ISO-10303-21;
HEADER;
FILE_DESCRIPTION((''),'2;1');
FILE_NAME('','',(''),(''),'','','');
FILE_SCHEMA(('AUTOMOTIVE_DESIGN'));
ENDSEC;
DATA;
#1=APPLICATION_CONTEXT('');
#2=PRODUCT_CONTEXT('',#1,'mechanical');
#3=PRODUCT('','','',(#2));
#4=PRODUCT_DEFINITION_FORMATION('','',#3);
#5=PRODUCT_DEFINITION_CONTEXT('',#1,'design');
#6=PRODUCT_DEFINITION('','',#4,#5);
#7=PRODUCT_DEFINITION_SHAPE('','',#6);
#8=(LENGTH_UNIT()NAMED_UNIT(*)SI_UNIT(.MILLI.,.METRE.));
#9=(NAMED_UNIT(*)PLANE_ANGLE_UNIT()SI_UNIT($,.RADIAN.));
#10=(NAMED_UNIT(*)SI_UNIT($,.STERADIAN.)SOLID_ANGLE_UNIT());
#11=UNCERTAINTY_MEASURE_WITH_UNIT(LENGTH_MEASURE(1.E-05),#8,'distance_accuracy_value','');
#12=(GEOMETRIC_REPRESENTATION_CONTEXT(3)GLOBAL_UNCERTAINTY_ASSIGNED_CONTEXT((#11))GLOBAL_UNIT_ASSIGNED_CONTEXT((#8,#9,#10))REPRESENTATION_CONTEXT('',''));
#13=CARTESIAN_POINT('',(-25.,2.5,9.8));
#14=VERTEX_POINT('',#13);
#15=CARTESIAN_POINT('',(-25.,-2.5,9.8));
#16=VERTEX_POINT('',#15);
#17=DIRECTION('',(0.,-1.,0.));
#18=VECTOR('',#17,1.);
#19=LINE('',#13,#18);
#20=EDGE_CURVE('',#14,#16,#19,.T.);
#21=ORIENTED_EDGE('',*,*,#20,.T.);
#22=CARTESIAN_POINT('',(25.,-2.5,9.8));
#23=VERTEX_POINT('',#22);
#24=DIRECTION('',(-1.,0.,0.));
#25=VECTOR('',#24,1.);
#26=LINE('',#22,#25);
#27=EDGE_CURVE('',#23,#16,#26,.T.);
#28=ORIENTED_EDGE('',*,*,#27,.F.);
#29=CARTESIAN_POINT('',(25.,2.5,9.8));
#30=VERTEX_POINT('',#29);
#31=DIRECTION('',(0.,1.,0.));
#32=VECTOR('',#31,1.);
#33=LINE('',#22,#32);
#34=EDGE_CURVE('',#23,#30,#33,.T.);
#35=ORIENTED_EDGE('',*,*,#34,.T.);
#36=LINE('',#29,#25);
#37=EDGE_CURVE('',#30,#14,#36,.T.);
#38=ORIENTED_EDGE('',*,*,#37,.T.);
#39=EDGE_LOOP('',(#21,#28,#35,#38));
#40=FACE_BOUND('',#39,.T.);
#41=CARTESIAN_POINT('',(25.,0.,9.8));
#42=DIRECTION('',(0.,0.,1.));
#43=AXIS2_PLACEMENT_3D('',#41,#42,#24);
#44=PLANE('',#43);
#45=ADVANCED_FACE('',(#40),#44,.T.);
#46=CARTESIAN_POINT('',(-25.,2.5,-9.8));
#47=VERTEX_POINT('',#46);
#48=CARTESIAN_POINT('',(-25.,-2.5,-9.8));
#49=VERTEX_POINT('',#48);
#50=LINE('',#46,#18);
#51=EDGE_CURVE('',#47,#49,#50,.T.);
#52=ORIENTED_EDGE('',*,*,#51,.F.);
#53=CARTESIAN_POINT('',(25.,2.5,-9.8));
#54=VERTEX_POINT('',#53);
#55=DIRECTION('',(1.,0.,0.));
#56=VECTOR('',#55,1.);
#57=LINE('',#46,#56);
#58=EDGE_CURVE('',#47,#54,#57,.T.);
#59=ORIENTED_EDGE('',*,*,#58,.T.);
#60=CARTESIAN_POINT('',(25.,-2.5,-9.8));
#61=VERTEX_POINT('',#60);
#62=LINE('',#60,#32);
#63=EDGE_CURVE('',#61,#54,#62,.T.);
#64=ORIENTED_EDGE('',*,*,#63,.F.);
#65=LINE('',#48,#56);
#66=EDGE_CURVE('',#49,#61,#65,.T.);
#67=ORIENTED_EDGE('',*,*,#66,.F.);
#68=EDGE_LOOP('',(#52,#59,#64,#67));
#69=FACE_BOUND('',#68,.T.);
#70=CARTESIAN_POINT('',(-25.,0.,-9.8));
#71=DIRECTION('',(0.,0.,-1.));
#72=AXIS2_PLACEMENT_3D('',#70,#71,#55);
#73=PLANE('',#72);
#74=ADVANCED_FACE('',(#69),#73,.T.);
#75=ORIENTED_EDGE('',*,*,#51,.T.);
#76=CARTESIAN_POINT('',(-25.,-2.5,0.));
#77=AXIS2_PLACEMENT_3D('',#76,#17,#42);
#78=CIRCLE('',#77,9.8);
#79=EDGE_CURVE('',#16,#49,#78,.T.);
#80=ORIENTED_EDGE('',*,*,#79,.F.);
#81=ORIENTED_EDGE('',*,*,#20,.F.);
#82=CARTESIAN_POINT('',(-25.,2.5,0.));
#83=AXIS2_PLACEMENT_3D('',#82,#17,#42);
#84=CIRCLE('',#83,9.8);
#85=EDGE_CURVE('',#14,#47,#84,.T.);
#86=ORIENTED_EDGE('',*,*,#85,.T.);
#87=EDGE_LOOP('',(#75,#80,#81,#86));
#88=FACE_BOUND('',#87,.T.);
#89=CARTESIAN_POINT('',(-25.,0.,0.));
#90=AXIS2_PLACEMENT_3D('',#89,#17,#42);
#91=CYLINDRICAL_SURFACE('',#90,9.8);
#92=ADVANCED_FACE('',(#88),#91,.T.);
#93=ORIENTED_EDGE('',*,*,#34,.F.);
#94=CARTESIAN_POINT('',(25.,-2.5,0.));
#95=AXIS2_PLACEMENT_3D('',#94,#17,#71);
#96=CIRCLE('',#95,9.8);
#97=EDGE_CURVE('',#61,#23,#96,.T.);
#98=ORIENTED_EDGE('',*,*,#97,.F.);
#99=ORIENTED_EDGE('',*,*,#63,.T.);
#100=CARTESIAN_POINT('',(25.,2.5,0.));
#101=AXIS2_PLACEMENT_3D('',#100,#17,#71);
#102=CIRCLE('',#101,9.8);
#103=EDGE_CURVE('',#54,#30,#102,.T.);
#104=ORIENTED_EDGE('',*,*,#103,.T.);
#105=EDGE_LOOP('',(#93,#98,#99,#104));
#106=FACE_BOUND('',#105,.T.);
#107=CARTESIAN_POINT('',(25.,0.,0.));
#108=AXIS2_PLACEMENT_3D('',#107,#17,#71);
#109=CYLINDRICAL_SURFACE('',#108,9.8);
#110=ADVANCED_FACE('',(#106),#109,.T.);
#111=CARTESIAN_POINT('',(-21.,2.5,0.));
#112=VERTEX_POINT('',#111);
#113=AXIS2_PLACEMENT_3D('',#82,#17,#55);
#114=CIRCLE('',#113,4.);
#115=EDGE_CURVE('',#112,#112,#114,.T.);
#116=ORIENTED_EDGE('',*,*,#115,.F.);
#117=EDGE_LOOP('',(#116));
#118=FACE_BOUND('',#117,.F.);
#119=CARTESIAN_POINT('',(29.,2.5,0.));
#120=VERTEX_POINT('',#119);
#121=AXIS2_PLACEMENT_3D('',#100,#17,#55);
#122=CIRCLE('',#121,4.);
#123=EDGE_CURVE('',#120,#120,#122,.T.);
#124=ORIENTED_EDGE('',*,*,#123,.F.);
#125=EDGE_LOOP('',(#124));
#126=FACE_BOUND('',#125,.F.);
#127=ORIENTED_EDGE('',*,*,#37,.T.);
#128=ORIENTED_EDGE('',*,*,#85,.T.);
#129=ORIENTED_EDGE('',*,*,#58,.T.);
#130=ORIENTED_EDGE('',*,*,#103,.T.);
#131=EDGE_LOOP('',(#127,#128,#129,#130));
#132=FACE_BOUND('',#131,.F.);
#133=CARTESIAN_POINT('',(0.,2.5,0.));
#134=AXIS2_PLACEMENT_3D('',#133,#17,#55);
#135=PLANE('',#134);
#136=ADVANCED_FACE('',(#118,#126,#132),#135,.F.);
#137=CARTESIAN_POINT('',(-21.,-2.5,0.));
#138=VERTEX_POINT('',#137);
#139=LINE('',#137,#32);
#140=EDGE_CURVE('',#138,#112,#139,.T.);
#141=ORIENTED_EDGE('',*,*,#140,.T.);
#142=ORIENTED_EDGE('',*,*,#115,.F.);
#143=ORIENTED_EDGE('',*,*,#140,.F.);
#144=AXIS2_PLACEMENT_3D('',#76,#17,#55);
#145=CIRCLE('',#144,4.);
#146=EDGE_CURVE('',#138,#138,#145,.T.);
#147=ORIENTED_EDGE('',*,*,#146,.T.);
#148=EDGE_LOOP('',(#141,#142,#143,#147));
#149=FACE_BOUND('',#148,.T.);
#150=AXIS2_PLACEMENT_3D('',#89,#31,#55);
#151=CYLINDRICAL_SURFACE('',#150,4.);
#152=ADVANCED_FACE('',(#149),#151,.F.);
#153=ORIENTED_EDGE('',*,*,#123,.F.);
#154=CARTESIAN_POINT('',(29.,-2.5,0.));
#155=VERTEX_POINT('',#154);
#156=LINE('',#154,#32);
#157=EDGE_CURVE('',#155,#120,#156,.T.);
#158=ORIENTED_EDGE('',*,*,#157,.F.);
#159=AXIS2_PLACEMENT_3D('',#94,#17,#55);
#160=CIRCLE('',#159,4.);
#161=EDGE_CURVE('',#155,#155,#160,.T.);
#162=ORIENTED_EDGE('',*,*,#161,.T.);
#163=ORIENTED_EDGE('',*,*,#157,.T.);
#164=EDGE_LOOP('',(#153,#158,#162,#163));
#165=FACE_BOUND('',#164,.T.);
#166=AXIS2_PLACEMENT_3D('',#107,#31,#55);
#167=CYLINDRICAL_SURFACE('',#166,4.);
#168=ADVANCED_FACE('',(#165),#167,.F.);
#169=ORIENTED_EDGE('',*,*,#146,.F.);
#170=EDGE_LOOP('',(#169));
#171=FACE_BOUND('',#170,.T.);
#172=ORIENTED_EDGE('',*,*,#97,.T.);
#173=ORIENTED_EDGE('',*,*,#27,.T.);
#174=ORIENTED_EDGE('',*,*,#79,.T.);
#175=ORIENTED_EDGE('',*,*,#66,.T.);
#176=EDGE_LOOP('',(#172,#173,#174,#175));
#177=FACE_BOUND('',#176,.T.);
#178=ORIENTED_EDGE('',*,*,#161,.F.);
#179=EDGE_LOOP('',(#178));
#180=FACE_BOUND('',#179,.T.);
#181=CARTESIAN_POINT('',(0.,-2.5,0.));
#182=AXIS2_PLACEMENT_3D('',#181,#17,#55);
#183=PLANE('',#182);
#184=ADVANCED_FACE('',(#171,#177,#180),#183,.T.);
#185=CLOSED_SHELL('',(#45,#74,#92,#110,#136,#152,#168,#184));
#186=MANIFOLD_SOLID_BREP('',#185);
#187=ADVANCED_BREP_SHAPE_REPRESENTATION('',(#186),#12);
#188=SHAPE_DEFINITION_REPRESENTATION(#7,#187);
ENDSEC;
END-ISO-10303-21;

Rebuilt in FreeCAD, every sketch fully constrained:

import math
import FreeCAD as App
import Part
import Sketcher
from FreeCAD import Vector

doc = App.newDocument("Part")
body = doc.addObject("PartDesign::Body", "Body")

sketch1 = doc.addObject("Sketcher::SketchObject", "Sketch")
body.addObject(sketch1)
sketch1.AttachmentSupport = (doc.XZ_Plane, [""])
sketch1.MapMode = "FlatFace"
sketch1.addGeometry([
    Part.LineSegment(Vector(25, 9.8, 0), Vector(-25, 9.8, 0)),
    Part.ArcOfCircle(Part.Circle(Vector(-25, 0, 0), Vector(0, 0, 1), 9.8), math.radians(90), math.radians(270)),
    Part.LineSegment(Vector(-25, -9.8, 0), Vector(25, -9.8, 0)),
    Part.ArcOfCircle(Part.Circle(Vector(25, 0, 0), Vector(0, 0, 1), 9.8), math.radians(-90), math.radians(90)),
    Part.Circle(Vector(-25, 0, 0), Vector(0, 0, 1), 4),
    Part.Circle(Vector(25, 0, 0), Vector(0, 0, 1), 4),
], False)
sketch1.addConstraint([
    Sketcher.Constraint("Tangent", 0, 2, 1, 1),
    Sketcher.Constraint("Tangent", 1, 2, 2, 1),
    Sketcher.Constraint("Tangent", 2, 2, 3, 1),
    Sketcher.Constraint("Tangent", 3, 2, 0, 1),
    Sketcher.Constraint("Horizontal", 0),
    Sketcher.Constraint("Horizontal", 2),
    Sketcher.Constraint("Coincident", 4, 3, 1, 3),
    Sketcher.Constraint("Coincident", 5, 3, 3, 3),
    Sketcher.Constraint("Equal", 4, 5),
    Sketcher.Constraint("Symmetric", 1, 3, 3, 3, -1, 1),
    Sketcher.Constraint("Diameter", 4, 8.0),
    Sketcher.Constraint("Radius", 1, 9.8),
    Sketcher.Constraint("DistanceX", 0, 2, 0, 1, 50.0),
])
pad1 = doc.addObject("PartDesign::Pad", "Pad")
body.addObject(pad1)
pad1.Profile = sketch1
pad1.Length = 5
pad1.Midplane = True

doc.recompute()
